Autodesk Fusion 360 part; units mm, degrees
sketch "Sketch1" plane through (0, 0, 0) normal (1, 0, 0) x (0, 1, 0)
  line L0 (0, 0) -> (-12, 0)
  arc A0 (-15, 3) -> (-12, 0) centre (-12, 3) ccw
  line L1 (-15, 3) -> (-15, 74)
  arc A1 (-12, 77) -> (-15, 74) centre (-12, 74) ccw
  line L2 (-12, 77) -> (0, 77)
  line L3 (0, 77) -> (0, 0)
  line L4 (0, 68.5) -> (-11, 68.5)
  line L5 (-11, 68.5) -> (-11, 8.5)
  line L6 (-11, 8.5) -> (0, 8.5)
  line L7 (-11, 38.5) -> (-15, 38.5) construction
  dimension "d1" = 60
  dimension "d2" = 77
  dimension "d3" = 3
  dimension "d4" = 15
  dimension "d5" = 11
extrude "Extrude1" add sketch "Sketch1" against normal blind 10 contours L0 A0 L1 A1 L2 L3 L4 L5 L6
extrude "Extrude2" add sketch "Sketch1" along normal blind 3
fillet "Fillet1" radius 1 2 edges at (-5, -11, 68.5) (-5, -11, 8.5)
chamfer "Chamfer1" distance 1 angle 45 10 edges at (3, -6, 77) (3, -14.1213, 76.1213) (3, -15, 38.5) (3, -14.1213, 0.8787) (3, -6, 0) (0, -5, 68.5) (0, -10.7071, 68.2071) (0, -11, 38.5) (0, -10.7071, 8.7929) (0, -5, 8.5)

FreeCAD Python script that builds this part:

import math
import FreeCAD as App
import Part
import Sketcher


def edges_at(feature, points):
    """Names of the edges that pass closest to the given points."""
    edges = feature.Shape.Edges
    near = lambda p: min(range(len(edges)), key=lambda i: edges[i].distToShape(Part.Vertex(*p))[0])
    return sorted({f"Edge{near(p) + 1}" for p in points})

doc = App.newDocument("Part")
params = doc.addObject("Spreadsheet::Sheet", "Params")
for row, (alias, value) in enumerate([
    ("sketch1_radius", "3 mm"),
    ("sketch1_width", "11 mm"),
    ("sketch1_height", "60 mm"),
    ("pad1_length", "10 mm"),
    ("sketch2_radius", "3 mm"),
    ("sketch2_height", "77 mm"),
    ("pad2_length", "3 mm"),
    ("fillet_radius", "1 mm"),
    ("chamfer_size", "1 mm"),
], start=1):
    params.set(f"A{row}", alias)
    params.set(f"B{row}", "=" + value)
    params.setAlias(f"B{row}", alias)

body = doc.addObject("PartDesign::Body", "Body")

# Sketch on YZ plane
sketch1 = body.newObject("Sketcher::SketchObject", "Sketch")
sketch1.AttachmentSupport = (doc.getObject("YZ_Plane"), [""])
sketch1.MapMode = "FlatFace"
sketch1.addGeometry(Part.LineSegment(App.Vector(-12, 0, 0), App.Vector(0, 0, 0)), False)
sketch1.addGeometry(Part.LineSegment(App.Vector(0, 0, 0), App.Vector(0, 8.5, 0)), False)
sketch1.addGeometry(Part.LineSegment(App.Vector(0, 8.5, 0), App.Vector(-11, 8.5, 0)), False)
sketch1.addGeometry(Part.LineSegment(App.Vector(-11, 8.5, 0), App.Vector(-11, 68.5, 0)), False)
sketch1.addGeometry(Part.LineSegment(App.Vector(-11, 68.5, 0), App.Vector(0, 68.5, 0)), False)
sketch1.addGeometry(Part.LineSegment(App.Vector(0, 68.5, 0), App.Vector(0, 77, 0)), False)
sketch1.addGeometry(Part.LineSegment(App.Vector(0, 77, 0), App.Vector(-12, 77, 0)), False)
sketch1.addGeometry(Part.ArcOfCircle(Part.Circle(App.Vector(-12, 74, 0), App.Vector(0, 0, 1), 3), math.radians(90), math.radians(180)), False)
sketch1.addGeometry(Part.LineSegment(App.Vector(-15, 74, 0), App.Vector(-15, 3, 0)), False)
sketch1.addGeometry(Part.ArcOfCircle(Part.Circle(App.Vector(-12, 3, 0), App.Vector(0, 0, 1), 3), math.radians(180), math.radians(270)), False)
sketch1.addConstraint(Sketcher.Constraint("Coincident", 0, 2, 1, 1))
sketch1.addConstraint(Sketcher.Constraint("Coincident", 1, 2, 2, 1))
sketch1.addConstraint(Sketcher.Constraint("Coincident", 2, 2, 3, 1))
sketch1.addConstraint(Sketcher.Constraint("Coincident", 3, 2, 4, 1))
sketch1.addConstraint(Sketcher.Constraint("Coincident", 4, 2, 5, 1))
sketch1.addConstraint(Sketcher.Constraint("Coincident", 5, 2, 6, 1))
sketch1.addConstraint(Sketcher.Constraint("Tangent", 6, 2, 7, 1))
sketch1.addConstraint(Sketcher.Constraint("Tangent", 7, 2, 8, 1))
sketch1.addConstraint(Sketcher.Constraint("Tangent", 8, 2, 9, 1))
sketch1.addConstraint(Sketcher.Constraint("Tangent", 9, 2, 0, 1))
sketch1.addConstraint(Sketcher.Constraint("Horizontal", 0))
sketch1.addConstraint(Sketcher.Constraint("Vertical", 1))
sketch1.addConstraint(Sketcher.Constraint("Horizontal", 2))
sketch1.addConstraint(Sketcher.Constraint("Vertical", 3))
sketch1.addConstraint(Sketcher.Constraint("Horizontal", 4))
sketch1.addConstraint(Sketcher.Constraint("Vertical", 5))
sketch1.addConstraint(Sketcher.Constraint("Horizontal", 6))
sketch1.addConstraint(Sketcher.Constraint("Vertical", 8))
sketch1.addConstraint(Sketcher.Constraint("Coincident", 0, 2, -1, 1))
sketch1.addConstraint(Sketcher.Constraint("Equal", 7, 9))
sketch1.addConstraint(Sketcher.Constraint("PointOnObject", 4, 2, -2))
sketch1.addConstraint(Sketcher.Constraint("Equal", 1, 5))
sketch1.addConstraint(Sketcher.Constraint("Radius", 7, 3.0))
sketch1.addConstraint(Sketcher.Constraint("DistanceX", 2, 2, 2, 1, 11.0))
sketch1.addConstraint(Sketcher.Constraint("DistanceY", 3, 1, 3, 2, 60.0))
sketch1.addConstraint(Sketcher.Constraint("DistanceY", -1, 1, 5, 2, 77.0))
sketch1.addConstraint(Sketcher.Constraint("DistanceX", 7, 2, -1, 1, 15.0))
sketch1.setExpression("Constraints[22]", "Params.sketch1_radius")
sketch1.setExpression("Constraints[23]", "Params.sketch1_width")
sketch1.setExpression("Constraints[24]", "Params.sketch1_height")
pad1 = body.newObject("PartDesign::Pad", "Pad")
pad1.Profile = sketch1
pad1.setExpression("Length", "Params.pad1_length")
pad1.Reversed = True

# Sketch on YZ plane
sketch2 = body.newObject("Sketcher::SketchObject", "Sketch001")
sketch2.AttachmentSupport = (doc.getObject("YZ_Plane"), [""])
sketch2.MapMode = "FlatFace"
sketch2.addGeometry(Part.LineSegment(App.Vector(-12, 0, 0), App.Vector(0, 0, 0)), False)
sketch2.addGeometry(Part.LineSegment(App.Vector(0, 0, 0), App.Vector(0, 77, 0)), False)
sketch2.addGeometry(Part.LineSegment(App.Vector(0, 77, 0), App.Vector(-12, 77, 0)), False)
sketch2.addGeometry(Part.ArcOfCircle(Part.Circle(App.Vector(-12, 74, 0), App.Vector(0, 0, 1), 3), math.radians(90), math.radians(180)), False)
sketch2.addGeometry(Part.LineSegment(App.Vector(-15, 74, 0), App.Vector(-15, 3, 0)), False)
sketch2.addGeometry(Part.ArcOfCircle(Part.Circle(App.Vector(-12, 3, 0), App.Vector(0, 0, 1), 3), math.radians(180), math.radians(270)), False)
sketch2.addConstraint(Sketcher.Constraint("Coincident", 0, 2, 1, 1))
sketch2.addConstraint(Sketcher.Constraint("Coincident", 1, 2, 2, 1))
sketch2.addConstraint(Sketcher.Constraint("Tangent", 2, 2, 3, 1))
sketch2.addConstraint(Sketcher.Constraint("Tangent", 3, 2, 4, 1))
sketch2.addConstraint(Sketcher.Constraint("Tangent", 4, 2, 5, 1))
sketch2.addConstraint(Sketcher.Constraint("Tangent", 5, 2, 0, 1))
sketch2.addConstraint(Sketcher.Constraint("Horizontal", 0))
sketch2.addConstraint(Sketcher.Constraint("Vertical", 1))
sketch2.addConstraint(Sketcher.Constraint("Horizontal", 2))
sketch2.addConstraint(Sketcher.Constraint("Vertical", 4))
sketch2.addConstraint(Sketcher.Constraint("Coincident", 0, 2, -1, 1))
sketch2.addConstraint(Sketcher.Constraint("Equal", 3, 5))
sketch2.addConstraint(Sketcher.Constraint("Radius", 3, 3.0))
sketch2.addConstraint(Sketcher.Constraint("DistanceY", 1, 1, 1, 2, 77.0))
sketch2.addConstraint(Sketcher.Constraint("DistanceX", 3, 2, -1, 1, 15.0))
sketch2.setExpression("Constraints[12]", "Params.sketch2_radius")
sketch2.setExpression("Constraints[13]", "Params.sketch2_height")
pad2 = body.newObject("PartDesign::Pad", "Pad001")
pad2.Profile = sketch2
pad2.setExpression("Length", "Params.pad2_length")
doc.recompute()

fillet = body.newObject("PartDesign::Fillet", "Fillet")
fillet.Base = (pad2, edges_at(pad2, [(-5, -11, 68.5), (-5, -11, 8.5)]))
fillet.setExpression("Radius", "Params.fillet_radius")
doc.recompute()

chamfer = body.newObject("PartDesign::Chamfer", "Chamfer")
chamfer.Base = (fillet, edges_at(fillet, [
    (3, -6, 77),
    (3, -14.121, 76.121),
    (3, -15, 38.5),
    (3, -14.121, 0.879),
    (3, -6, 0),
    (0, -5, 68.5),
    (0, -10.707, 68.207),
    (0, -11, 38.5),
    (0, -10.707, 8.793),
    (0, -5, 8.5),
]))
chamfer.setExpression("Size", "Params.chamfer_size")

doc.recompute()
